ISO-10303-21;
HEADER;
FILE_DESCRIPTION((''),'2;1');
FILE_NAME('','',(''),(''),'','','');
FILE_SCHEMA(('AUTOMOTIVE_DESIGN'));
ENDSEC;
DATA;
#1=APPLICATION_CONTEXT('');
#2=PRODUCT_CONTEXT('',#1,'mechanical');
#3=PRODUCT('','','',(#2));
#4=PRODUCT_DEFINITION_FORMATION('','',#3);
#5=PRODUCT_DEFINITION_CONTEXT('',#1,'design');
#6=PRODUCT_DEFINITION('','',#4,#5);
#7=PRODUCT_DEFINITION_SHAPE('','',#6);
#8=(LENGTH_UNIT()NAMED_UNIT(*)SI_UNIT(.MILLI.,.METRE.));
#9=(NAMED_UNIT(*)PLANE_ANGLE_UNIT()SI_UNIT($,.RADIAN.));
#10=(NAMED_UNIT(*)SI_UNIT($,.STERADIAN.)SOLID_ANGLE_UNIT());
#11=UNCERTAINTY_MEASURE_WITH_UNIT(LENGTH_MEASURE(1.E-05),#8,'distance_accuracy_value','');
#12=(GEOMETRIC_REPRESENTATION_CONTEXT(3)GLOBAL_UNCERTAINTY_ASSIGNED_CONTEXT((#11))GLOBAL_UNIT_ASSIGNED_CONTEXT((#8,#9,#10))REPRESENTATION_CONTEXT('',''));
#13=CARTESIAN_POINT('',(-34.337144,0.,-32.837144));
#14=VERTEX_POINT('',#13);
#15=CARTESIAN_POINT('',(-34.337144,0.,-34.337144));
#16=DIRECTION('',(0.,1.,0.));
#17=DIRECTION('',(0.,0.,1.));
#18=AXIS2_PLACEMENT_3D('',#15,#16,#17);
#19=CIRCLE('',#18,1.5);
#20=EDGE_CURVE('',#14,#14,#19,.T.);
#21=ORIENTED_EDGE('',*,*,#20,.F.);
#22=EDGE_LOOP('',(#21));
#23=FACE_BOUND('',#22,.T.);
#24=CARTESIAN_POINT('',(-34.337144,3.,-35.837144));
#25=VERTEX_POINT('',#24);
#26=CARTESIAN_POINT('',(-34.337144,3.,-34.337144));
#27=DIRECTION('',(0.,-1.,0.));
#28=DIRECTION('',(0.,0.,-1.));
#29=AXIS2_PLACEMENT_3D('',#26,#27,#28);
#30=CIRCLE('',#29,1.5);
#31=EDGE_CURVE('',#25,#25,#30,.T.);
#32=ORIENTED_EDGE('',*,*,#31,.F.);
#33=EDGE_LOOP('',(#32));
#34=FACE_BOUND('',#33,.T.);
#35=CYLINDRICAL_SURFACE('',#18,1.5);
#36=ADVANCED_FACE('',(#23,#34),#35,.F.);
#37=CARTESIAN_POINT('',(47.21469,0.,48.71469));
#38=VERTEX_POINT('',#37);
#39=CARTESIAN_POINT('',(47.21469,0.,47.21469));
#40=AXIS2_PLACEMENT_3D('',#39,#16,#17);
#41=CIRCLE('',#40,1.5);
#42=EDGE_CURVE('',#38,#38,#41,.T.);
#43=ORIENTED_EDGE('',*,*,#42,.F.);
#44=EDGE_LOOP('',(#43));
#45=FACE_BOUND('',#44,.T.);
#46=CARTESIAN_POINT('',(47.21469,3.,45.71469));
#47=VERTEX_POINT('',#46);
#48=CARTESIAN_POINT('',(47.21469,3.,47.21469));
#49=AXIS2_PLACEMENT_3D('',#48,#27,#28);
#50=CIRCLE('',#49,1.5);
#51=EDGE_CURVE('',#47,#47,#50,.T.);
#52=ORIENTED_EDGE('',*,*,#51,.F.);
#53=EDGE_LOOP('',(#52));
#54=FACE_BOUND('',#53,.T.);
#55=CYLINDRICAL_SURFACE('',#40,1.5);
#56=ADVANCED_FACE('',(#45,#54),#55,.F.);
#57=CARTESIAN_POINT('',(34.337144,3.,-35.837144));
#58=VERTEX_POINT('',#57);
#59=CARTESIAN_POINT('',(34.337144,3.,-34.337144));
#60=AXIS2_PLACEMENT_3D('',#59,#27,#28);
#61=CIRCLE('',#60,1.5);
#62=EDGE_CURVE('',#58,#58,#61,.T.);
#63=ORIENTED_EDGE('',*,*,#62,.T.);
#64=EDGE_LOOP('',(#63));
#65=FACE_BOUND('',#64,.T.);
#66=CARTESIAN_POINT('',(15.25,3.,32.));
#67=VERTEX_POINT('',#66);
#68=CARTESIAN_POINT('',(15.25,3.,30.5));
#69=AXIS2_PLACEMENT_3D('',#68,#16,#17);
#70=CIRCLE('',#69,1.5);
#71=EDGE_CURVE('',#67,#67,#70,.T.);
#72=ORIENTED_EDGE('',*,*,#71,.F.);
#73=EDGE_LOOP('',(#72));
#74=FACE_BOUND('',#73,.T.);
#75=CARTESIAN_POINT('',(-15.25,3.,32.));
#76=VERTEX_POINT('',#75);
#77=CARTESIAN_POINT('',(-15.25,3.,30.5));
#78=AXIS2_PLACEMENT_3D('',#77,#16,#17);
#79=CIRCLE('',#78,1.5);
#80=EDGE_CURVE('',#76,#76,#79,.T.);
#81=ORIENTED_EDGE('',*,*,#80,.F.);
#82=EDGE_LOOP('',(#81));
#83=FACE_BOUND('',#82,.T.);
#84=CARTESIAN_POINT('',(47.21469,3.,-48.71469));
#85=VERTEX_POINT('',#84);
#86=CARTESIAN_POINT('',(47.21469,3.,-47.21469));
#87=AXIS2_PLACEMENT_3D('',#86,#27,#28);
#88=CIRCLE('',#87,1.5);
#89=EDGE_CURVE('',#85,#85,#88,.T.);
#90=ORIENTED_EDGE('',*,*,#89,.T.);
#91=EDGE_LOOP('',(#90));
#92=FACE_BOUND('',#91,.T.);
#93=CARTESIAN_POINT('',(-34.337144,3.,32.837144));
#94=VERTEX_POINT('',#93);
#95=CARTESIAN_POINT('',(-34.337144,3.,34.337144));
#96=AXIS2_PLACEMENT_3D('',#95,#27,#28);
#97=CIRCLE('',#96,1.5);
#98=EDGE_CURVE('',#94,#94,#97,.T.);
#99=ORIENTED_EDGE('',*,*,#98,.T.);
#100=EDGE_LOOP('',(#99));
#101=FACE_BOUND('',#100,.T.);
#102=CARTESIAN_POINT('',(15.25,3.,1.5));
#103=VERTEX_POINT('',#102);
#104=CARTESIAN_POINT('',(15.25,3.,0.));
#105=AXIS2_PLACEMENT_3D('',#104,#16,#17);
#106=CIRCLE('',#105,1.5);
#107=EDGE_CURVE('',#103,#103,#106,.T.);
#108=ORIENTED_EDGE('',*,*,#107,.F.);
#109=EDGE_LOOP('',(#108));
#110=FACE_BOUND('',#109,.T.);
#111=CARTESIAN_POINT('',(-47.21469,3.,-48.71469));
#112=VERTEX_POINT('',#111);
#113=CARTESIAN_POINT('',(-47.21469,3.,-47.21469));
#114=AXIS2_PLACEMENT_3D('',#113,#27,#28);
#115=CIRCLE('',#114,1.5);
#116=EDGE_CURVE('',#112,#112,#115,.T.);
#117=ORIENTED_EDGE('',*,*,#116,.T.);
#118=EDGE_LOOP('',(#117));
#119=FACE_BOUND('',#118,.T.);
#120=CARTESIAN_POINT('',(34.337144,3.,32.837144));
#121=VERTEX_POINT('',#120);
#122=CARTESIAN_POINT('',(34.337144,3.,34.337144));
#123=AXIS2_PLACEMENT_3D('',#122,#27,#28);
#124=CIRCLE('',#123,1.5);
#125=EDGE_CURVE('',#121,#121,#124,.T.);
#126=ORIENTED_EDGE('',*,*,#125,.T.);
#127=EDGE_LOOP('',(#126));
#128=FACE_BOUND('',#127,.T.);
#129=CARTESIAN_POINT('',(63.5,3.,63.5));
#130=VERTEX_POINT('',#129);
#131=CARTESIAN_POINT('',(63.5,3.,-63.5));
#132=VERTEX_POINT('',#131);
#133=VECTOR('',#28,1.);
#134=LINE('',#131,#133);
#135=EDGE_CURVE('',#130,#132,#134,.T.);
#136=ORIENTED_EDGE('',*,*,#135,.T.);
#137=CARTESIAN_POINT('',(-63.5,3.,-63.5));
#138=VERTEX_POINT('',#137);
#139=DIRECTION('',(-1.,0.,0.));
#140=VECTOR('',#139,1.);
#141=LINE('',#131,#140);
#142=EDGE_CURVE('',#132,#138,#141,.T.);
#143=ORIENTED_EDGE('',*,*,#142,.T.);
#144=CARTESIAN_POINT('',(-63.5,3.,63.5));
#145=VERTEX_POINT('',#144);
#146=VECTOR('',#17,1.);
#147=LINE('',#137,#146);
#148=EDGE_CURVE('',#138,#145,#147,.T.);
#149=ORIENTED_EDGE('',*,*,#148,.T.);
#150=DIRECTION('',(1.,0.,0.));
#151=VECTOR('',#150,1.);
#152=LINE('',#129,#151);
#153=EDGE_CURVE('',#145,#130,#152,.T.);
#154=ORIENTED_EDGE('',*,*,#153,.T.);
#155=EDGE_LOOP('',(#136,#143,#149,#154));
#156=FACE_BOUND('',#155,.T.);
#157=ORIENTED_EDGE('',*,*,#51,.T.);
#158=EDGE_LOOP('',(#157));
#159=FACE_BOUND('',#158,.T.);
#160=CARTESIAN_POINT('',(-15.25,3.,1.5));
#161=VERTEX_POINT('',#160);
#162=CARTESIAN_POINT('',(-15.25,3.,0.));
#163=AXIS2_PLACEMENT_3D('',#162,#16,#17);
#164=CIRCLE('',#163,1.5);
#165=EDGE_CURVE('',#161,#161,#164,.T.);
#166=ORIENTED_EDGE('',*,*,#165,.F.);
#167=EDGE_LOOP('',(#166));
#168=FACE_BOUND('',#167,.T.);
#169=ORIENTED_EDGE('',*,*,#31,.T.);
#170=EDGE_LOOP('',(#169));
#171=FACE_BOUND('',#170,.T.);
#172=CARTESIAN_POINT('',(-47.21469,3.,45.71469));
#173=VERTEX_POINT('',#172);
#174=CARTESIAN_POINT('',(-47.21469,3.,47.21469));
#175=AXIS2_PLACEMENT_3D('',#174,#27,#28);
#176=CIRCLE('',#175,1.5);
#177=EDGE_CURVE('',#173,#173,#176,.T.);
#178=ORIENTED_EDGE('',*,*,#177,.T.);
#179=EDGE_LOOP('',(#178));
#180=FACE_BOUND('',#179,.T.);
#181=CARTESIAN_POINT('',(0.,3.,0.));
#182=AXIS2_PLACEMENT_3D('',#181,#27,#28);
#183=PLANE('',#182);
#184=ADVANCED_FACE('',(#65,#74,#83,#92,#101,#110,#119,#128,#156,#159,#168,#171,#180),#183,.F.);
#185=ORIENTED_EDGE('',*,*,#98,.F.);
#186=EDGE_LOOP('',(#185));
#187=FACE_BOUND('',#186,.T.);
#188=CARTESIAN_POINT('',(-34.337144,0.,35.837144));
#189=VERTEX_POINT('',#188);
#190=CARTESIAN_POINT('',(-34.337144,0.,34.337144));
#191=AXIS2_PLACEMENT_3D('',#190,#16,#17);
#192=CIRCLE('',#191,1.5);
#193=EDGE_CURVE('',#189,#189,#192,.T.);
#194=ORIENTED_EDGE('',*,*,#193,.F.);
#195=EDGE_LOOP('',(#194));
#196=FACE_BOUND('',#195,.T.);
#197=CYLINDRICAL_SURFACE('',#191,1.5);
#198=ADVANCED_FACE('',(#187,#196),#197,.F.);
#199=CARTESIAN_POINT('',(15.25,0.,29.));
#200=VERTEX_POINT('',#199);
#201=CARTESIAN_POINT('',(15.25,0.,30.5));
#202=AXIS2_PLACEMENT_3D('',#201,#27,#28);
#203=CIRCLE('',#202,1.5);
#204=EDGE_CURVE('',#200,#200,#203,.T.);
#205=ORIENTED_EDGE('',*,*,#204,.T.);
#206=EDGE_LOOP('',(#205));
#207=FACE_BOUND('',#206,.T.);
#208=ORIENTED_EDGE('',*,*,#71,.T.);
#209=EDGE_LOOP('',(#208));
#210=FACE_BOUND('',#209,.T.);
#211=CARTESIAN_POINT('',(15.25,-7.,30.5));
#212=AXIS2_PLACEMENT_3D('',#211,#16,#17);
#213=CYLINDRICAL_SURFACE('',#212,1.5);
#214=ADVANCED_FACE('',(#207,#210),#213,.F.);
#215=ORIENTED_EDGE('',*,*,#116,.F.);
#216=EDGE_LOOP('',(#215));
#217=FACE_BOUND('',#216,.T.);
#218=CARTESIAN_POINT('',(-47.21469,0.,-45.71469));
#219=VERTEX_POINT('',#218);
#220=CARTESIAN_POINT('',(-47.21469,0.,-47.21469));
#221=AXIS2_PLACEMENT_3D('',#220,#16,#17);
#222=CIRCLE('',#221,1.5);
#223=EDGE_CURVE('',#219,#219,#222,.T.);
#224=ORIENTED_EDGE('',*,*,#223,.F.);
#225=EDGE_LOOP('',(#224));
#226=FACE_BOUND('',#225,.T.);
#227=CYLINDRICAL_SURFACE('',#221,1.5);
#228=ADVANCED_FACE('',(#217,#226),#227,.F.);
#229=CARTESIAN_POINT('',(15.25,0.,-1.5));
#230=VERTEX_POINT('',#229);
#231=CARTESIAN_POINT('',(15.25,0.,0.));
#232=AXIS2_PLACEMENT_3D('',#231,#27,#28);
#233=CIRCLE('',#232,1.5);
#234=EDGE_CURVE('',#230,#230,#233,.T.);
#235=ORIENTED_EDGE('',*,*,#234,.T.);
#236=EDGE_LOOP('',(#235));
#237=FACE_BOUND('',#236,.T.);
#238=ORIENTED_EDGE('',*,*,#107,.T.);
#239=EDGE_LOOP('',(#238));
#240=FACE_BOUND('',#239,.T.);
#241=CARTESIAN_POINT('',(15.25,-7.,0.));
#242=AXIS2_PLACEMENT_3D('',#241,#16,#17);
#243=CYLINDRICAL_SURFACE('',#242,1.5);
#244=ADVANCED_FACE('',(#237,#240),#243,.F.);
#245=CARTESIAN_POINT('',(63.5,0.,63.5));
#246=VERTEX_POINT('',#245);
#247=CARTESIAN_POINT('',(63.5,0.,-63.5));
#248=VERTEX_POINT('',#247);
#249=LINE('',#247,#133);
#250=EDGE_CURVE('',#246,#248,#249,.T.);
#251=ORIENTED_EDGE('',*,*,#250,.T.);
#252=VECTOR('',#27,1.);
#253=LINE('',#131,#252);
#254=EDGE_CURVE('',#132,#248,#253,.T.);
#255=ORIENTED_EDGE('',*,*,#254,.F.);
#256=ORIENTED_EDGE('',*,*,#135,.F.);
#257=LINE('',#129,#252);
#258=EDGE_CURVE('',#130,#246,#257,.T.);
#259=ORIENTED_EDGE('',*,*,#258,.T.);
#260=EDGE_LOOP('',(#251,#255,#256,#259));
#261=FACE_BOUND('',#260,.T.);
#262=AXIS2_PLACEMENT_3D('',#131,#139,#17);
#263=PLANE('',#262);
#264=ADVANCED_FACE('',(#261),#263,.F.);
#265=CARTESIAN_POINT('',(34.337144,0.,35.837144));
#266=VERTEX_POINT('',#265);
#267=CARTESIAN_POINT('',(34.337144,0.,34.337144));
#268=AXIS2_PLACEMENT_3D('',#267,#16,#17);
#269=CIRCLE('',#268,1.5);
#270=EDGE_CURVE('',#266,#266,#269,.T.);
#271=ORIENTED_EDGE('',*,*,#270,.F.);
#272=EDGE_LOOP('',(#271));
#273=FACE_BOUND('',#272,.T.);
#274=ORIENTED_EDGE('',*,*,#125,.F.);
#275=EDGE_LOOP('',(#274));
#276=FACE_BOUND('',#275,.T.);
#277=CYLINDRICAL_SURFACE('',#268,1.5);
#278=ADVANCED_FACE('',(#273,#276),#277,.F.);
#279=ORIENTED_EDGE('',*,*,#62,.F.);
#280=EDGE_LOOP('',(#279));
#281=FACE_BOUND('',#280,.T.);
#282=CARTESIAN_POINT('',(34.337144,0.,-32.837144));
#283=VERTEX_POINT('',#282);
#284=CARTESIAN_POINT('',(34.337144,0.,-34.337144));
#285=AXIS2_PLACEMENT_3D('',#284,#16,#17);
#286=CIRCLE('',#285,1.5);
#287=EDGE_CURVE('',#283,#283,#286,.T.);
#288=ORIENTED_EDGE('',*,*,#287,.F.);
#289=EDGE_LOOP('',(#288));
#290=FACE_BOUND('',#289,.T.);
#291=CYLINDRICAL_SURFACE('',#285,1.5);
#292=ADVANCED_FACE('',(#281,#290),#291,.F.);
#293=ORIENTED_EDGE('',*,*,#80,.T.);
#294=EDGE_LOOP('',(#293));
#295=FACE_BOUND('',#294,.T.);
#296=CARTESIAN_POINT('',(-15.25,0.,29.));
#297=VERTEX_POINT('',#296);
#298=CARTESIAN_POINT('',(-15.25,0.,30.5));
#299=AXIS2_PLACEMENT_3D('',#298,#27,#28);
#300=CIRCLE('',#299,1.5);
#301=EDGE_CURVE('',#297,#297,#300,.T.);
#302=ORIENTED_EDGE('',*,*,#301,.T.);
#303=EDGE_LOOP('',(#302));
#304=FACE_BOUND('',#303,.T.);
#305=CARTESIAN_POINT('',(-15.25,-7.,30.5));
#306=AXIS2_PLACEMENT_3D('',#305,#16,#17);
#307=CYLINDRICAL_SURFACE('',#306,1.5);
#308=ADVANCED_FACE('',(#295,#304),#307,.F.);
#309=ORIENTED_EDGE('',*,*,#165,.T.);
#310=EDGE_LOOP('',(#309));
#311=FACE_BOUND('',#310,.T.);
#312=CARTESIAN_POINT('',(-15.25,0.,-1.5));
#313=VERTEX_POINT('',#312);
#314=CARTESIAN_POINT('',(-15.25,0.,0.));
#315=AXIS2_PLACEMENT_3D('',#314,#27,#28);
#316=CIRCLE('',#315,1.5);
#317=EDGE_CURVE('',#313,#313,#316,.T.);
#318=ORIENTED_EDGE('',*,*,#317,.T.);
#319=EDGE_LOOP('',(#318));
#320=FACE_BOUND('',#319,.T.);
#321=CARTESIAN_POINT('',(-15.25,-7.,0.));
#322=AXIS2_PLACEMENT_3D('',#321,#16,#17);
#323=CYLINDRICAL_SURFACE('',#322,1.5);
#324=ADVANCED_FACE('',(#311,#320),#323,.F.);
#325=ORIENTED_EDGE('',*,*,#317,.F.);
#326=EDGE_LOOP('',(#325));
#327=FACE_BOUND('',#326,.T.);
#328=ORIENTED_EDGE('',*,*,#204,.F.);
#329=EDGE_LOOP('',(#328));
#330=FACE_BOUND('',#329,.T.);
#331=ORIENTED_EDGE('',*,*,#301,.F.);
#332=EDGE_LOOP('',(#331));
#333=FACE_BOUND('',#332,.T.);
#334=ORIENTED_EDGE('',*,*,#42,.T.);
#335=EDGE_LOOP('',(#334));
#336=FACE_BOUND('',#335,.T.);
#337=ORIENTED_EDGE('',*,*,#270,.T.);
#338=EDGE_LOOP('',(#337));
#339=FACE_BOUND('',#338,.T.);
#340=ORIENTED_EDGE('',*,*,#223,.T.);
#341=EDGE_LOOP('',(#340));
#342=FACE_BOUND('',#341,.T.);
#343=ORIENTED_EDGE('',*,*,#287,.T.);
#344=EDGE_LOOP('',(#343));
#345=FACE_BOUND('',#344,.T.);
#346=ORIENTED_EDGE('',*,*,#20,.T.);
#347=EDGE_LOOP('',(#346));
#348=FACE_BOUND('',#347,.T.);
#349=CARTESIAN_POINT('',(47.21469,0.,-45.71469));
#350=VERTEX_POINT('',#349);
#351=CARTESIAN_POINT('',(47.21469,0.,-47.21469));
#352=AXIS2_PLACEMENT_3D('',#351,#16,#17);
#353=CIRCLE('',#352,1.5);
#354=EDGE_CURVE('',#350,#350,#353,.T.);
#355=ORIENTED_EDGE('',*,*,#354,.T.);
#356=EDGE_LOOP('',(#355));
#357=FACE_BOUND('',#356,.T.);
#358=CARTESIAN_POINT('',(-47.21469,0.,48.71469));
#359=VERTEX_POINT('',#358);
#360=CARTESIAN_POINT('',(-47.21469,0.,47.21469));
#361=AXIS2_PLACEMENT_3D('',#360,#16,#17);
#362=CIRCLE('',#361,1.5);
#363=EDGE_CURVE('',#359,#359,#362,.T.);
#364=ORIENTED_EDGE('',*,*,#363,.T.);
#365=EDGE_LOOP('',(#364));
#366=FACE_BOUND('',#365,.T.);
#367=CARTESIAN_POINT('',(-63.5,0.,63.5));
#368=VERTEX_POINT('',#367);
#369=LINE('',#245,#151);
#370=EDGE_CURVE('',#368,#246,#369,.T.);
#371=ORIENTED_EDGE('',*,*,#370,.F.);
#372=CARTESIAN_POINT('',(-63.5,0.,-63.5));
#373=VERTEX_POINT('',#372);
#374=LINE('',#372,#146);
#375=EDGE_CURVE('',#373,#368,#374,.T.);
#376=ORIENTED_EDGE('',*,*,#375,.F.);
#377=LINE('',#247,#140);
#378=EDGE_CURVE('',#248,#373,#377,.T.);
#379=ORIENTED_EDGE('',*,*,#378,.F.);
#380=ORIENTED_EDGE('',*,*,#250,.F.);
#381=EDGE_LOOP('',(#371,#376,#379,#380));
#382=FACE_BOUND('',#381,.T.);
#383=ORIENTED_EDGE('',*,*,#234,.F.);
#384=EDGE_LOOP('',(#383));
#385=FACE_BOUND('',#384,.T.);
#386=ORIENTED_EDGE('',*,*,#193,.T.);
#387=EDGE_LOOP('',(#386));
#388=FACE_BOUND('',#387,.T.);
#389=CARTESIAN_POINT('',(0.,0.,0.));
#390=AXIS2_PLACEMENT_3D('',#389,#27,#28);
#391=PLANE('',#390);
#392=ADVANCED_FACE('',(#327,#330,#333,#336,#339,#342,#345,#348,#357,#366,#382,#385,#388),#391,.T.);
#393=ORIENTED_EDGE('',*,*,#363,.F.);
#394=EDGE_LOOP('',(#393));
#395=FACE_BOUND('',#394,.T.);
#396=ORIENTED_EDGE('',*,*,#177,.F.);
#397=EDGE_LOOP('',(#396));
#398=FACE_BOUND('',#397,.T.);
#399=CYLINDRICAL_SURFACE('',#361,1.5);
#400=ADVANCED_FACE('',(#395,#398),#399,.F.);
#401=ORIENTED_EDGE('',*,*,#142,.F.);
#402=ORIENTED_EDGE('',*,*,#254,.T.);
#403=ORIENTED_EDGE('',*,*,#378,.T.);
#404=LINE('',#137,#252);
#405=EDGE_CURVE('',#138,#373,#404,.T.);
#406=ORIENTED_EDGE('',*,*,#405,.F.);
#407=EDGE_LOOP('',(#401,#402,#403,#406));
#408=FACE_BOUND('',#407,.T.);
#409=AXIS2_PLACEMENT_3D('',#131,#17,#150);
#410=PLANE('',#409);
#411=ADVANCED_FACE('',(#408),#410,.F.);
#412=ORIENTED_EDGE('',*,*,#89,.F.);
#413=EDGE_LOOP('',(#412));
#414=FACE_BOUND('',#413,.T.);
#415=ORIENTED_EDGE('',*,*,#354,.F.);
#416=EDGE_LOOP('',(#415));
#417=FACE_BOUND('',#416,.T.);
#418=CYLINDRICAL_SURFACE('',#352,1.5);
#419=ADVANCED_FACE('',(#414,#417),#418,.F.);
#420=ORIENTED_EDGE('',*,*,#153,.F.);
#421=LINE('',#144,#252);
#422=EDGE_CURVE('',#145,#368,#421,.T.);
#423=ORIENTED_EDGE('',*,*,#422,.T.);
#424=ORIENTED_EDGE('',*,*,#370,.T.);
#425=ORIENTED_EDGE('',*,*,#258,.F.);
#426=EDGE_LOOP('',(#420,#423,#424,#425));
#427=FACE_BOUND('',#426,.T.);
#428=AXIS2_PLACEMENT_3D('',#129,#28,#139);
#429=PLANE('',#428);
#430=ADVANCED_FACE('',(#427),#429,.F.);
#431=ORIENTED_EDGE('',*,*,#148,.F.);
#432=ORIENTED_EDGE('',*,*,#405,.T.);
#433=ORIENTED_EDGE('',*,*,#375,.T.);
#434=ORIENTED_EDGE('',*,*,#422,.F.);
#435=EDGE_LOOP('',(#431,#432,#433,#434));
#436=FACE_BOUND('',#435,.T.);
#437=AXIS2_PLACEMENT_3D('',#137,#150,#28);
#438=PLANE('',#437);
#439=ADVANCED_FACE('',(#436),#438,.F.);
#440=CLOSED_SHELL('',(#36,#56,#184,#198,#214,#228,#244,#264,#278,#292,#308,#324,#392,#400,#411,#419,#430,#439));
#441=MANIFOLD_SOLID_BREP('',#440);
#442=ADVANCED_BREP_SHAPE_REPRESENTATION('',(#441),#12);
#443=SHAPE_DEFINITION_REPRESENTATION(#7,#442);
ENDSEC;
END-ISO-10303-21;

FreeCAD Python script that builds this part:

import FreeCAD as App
import Part
import Sketcher
from FreeCAD import Vector


def add_polygon(sketch, points):
    """Adds a closed chain of lines whose ends are joined by coincident constraints."""
    first, n = sketch.GeometryCount, len(points)
    for a, b in zip(points, points[1:] + points[:1]):
        sketch.addGeometry(Part.LineSegment(App.Vector(*a, 0), App.Vector(*b, 0)), False)
    for i in range(n):
        sketch.addConstraint(Sketcher.Constraint("Coincident", first + i, 2, first + (i + 1) % n, 1))

doc = App.newDocument("Part")
params = doc.addObject("Spreadsheet::Sheet", "Params")
for row, (alias, value) in enumerate([
    ("sketch1_width", "127 mm"),
    ("pad1_length", "3 mm"),
    ("sketch2_diameter", "3 mm"),
    ("sketch3_diameter", "3 mm"),
    ("pocket2_length", "10 mm"),
], start=1):
    params.set(f"A{row}", alias)
    params.set(f"B{row}", "=" + value)
    params.setAlias(f"B{row}", alias)

body = doc.addObject("PartDesign::Body", "Body")

# Sketch on XZ plane
sketch1 = body.newObject("Sketcher::SketchObject", "Sketch")
sketch1.AttachmentSupport = (doc.getObject("XZ_Plane"), [""])
sketch1.MapMode = "FlatFace"
add_polygon(sketch1, [(-63.5, -63.5), (-63.5, 63.5), (63.5, 63.5), (63.5, -63.5)])  # lines 0-3
sketch1.addConstraint([
    Sketcher.Constraint("Vertical", 0),
    Sketcher.Constraint("Horizontal", 1),
    Sketcher.Constraint("Vertical", 2),
    Sketcher.Constraint("Horizontal", 3),
    Sketcher.Constraint("Symmetric", 0, 2, 2, 2, -1, 1),
    Sketcher.Constraint("Equal", 3, 0),
    Sketcher.Constraint("DistanceX", 1, 1, 1, 2, 127.0),
])
sketch1.setExpression("Constraints[10]", "Params.sketch1_width")
pad1 = body.newObject("PartDesign::Pad", "Pad")
pad1.Profile = sketch1
pad1.setExpression("Length", "Params.pad1_length")
pad1.Reversed = True

# Sketch on XZ plane
sketch2 = body.newObject("Sketcher::SketchObject", "Sketch001")
sketch2.AttachmentSupport = (doc.getObject("XZ_Plane"), [""])
sketch2.MapMode = "FlatFace"
sketch2.AttachmentOffset = App.Placement(Vector(0, 0, -3), App.Rotation())
sketch2.addGeometry([
    Part.Circle(Vector(-47.21469, -47.21469, 0), Vector(0, 0, 1), 1.5),  # 0
    Part.Circle(Vector(-34.337144, -34.337144, 0), Vector(0, 0, 1), 1.5),  # 1
    Part.Circle(Vector(47.21469, -47.21469, 0), Vector(0, 0, 1), 1.5),  # 2
    Part.Circle(Vector(34.337144, -34.337144, 0), Vector(0, 0, 1), 1.5),  # 3
    Part.Circle(Vector(47.21469, 47.21469, 0), Vector(0, 0, 1), 1.5),  # 4
    Part.Circle(Vector(34.337144, 34.337144, 0), Vector(0, 0, 1), 1.5),  # 5
    Part.Circle(Vector(-47.21469, 47.21469, 0), Vector(0, 0, 1), 1.5),  # 6
    Part.Circle(Vector(-34.337144, 34.337144, 0), Vector(0, 0, 1), 1.5),  # 7
], False)
sketch2.addConstraint([
    Sketcher.Constraint("Equal", 0, 1),
    Sketcher.Constraint("Equal", 1, 2),
    Sketcher.Constraint("Equal", 2, 3),
    Sketcher.Constraint("Equal", 3, 4),
    Sketcher.Constraint("Equal", 4, 5),
    Sketcher.Constraint("Equal", 5, 6),
    Sketcher.Constraint("Equal", 6, 7),
    Sketcher.Constraint("Symmetric", 0, 3, 4, 3, -1, 1),
    Sketcher.Constraint("Symmetric", 1, 3, 5, 3, -1, 1),
    Sketcher.Constraint("Symmetric", 2, 3, 6, 3, -1, 1),
    Sketcher.Constraint("Symmetric", 3, 3, 7, 3, -1, 1),
    Sketcher.Constraint("Symmetric", 0, 3, 2, 3, -2),
    Sketcher.Constraint("Symmetric", 1, 3, 3, 3, -2),
    Sketcher.Constraint("Diameter", 0, 3.0),
    Sketcher.Constraint("DistanceX", 0, 3, -1, 1, 47.21469),
    Sketcher.Constraint("DistanceY", 0, 3, -1, 1, 47.21469),
    Sketcher.Constraint("DistanceX", 1, 3, 3, 3, 68.674288),
    Sketcher.Constraint("DistanceY", 3, 3, 5, 3, 68.674288),
])
sketch2.setExpression("Constraints[13]", "Params.sketch2_diameter")
pocket1 = body.newObject("PartDesign::Pocket", "Pocket")
pocket1.Profile = sketch2
pocket1.Type = "ThroughAll"
pocket1.Midplane = True

# Sketch on XZ plane
sketch3 = body.newObject("Sketcher::SketchObject", "Sketch002")
sketch3.AttachmentSupport = (doc.getObject("XZ_Plane"), [""])
sketch3.MapMode = "FlatFace"
sketch3.AttachmentOffset = App.Placement(Vector(0, 0, -3), App.Rotation())
sketch3.addGeometry([
    Part.Circle(Vector(-15.25, 0, 0), Vector(0, 0, 1), 1.5),
    Part.Circle(Vector(15.25, 0, 0), Vector(0, 0, 1), 1.5),
    Part.Circle(Vector(-15.25, 30.5, 0), Vector(0, 0, 1), 1.5),
    Part.Circle(Vector(15.25, 30.5, 0), Vector(0, 0, 1), 1.5),
], False)
sketch3.addConstraint([
    Sketcher.Constraint("Equal", 0, 1),
    Sketcher.Constraint("Equal", 1, 2),
    Sketcher.Constraint("Equal", 2, 3),
    Sketcher.Constraint("Symmetric", 0, 3, 1, 3, -1, 1),
    Sketcher.Constraint("Symmetric", 2, 3, 3, 3, -2),
    Sketcher.Constraint("PointOnObject", 0, 3, -1),
    Sketcher.Constraint("Vertical", 0, 3, 2, 3),
    Sketcher.Constraint("Diameter", 0, 3.0),
    Sketcher.Constraint("DistanceY", -1, 1, 2, 3, 30.5),
    Sketcher.Constraint("DistanceX", 0, 3, 1, 3, 30.5),
])
sketch3.setExpression("Constraints[7]", "Params.sketch3_diameter")
pocket2 = body.newObject("PartDesign::Pocket", "Pocket001")
pocket2.Profile = sketch3
pocket2.setExpression("Length", "Params.pocket2_length")
pocket2.Reversed = True

doc.recompute()
